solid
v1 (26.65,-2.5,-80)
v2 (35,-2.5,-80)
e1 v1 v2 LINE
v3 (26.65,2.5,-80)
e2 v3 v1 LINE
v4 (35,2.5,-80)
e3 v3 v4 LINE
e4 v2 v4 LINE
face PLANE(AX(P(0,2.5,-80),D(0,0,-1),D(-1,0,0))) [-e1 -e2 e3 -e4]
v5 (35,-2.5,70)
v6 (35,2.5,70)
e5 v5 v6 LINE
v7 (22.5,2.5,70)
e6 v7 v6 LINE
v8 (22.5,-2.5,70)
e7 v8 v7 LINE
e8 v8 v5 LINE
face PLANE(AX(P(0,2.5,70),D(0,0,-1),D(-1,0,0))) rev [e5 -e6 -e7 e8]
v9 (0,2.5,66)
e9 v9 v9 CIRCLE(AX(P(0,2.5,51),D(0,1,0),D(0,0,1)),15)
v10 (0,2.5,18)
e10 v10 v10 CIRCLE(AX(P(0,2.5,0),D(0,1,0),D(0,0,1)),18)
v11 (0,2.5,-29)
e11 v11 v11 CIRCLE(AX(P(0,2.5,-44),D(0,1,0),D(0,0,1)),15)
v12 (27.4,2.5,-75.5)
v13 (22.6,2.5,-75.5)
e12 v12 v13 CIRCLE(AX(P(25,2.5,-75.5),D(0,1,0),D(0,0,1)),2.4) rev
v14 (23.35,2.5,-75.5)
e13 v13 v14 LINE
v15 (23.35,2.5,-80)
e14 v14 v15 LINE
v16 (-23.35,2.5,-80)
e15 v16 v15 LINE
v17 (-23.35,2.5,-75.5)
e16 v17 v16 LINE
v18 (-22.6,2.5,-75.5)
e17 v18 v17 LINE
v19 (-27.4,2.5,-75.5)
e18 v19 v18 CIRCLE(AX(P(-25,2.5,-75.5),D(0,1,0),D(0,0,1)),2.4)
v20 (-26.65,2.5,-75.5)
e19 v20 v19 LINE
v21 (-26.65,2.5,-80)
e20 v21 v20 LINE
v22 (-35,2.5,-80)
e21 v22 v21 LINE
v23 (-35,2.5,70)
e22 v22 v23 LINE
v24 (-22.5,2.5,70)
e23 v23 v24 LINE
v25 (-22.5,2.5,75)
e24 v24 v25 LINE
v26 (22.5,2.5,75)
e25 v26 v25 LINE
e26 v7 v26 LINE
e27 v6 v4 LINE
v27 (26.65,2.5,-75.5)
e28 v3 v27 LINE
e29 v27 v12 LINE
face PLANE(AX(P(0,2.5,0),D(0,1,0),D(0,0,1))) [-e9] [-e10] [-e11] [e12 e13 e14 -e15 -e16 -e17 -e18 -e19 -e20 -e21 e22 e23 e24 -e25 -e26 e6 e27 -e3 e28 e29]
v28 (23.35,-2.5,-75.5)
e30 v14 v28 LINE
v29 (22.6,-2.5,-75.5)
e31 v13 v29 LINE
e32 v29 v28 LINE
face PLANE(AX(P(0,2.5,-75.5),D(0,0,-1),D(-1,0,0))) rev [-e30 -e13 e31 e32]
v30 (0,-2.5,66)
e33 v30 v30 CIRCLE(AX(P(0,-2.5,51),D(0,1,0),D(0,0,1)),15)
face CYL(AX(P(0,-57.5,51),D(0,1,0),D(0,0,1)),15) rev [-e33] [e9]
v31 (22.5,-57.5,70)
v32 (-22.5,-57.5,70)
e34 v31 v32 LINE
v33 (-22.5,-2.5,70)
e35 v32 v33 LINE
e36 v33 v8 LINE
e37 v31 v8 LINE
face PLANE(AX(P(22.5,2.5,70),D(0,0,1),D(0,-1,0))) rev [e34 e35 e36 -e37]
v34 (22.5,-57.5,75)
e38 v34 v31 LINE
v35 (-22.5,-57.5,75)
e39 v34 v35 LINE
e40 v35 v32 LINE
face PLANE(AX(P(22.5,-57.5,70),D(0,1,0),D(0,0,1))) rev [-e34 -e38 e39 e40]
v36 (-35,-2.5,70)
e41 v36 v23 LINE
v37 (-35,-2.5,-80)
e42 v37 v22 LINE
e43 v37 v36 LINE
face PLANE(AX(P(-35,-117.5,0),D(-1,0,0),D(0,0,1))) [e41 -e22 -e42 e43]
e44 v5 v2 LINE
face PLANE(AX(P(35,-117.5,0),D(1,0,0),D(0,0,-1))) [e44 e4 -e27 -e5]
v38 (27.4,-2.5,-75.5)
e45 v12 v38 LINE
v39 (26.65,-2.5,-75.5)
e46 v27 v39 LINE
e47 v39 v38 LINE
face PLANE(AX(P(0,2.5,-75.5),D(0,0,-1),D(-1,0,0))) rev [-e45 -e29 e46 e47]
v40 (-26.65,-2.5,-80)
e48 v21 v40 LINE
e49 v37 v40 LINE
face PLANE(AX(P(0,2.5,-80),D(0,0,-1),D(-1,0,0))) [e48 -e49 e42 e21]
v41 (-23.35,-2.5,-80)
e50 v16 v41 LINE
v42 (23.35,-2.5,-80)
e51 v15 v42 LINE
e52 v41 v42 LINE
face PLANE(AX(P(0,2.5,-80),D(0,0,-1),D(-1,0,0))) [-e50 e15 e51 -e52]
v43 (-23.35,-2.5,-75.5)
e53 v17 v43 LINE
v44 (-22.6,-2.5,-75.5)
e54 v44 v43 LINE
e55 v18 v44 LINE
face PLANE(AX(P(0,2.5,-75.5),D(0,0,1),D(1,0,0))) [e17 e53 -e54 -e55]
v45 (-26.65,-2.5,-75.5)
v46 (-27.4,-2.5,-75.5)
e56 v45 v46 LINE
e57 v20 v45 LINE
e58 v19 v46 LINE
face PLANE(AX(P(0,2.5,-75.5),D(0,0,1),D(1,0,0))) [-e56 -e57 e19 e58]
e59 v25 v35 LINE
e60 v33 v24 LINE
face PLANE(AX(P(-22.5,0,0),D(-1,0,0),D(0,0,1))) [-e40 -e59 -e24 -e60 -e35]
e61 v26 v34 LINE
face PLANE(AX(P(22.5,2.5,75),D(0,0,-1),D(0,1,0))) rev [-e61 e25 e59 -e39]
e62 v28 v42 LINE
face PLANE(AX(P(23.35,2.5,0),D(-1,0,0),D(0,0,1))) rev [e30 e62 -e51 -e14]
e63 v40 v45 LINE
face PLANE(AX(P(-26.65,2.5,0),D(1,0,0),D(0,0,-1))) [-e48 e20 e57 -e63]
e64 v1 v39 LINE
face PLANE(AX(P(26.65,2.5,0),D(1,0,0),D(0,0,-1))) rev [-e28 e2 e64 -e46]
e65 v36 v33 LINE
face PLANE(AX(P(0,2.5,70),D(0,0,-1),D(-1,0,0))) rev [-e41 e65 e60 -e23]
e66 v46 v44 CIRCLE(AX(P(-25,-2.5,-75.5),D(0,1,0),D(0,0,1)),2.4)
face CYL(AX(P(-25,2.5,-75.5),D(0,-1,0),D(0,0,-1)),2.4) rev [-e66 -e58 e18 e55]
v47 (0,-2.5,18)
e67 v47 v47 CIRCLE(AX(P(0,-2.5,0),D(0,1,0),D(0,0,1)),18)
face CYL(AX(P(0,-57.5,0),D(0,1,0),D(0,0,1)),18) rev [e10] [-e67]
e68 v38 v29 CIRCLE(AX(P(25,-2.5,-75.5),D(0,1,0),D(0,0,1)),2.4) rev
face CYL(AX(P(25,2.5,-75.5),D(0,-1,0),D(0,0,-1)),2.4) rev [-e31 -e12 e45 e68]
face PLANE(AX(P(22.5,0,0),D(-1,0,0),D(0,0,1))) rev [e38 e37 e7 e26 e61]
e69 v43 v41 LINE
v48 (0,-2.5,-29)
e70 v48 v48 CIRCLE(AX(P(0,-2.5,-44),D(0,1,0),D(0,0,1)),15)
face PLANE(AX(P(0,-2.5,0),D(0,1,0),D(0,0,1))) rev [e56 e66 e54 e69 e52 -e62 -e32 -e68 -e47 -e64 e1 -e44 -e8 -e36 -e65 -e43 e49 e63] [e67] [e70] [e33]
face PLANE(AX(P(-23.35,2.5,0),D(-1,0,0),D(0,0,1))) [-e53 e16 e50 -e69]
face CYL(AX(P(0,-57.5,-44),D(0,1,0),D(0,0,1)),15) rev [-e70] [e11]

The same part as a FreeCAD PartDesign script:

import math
import FreeCAD as App
import Part
import Sketcher
from FreeCAD import Vector


def add_polygon(sketch, points):
    """Adds a closed chain of lines whose ends are joined by coincident constraints."""
    first, n = sketch.GeometryCount, len(points)
    for a, b in zip(points, points[1:] + points[:1]):
        sketch.addGeometry(Part.LineSegment(App.Vector(*a, 0), App.Vector(*b, 0)), False)
    for i in range(n):
        sketch.addConstraint(Sketcher.Constraint("Coincident", first + i, 2, first + (i + 1) % n, 1))

doc = App.newDocument("Part")
params = doc.addObject("Spreadsheet::Sheet", "Params")
for row, (alias, value) in enumerate([
    ("sketch1_radius", "2.4 mm"),
    ("sketch1_height", "150 mm"),
    ("sketch1_width", "46.7 mm"),
    ("sketch1_height2", "4.5 mm"),
    ("sketch1_width2", "153.57 mm"),
    ("pad1_length", "5 mm"),
    ("sketch2_height", "150 mm"),
    ("pocket1_length", "120 mm"),
    ("sketch3_width", "60 mm"),
    ("sketch3_height", "5 mm"),
    ("pad2_length", "45 mm"),
    ("sketch4_diameter", "30 mm"),
    ("sketch4_diameter2", "36 mm"),
], start=1):
    params.set(f"A{row}", alias)
    params.set(f"B{row}", "=" + value)
    params.setAlias(f"B{row}", alias)

body = doc.addObject("PartDesign::Body", "Body")

sketch1 = doc.addObject("Sketcher::SketchObject", "Sketch")
body.addObject(sketch1)
sketch1.AttachmentSupport = (doc.XZ_Plane, [""])
sketch1.MapMode = "FlatFace"
sketch1.addGeometry([
    Part.LineSegment(Vector(-26.6, -80, 0), Vector(-76.8, -80, 0)),
    Part.LineSegment(Vector(-76.8, -80, 0), Vector(-76.8, 70, 0)),
    Part.LineSegment(Vector(-76.8, 70, 0), Vector(76.8, 70, 0)),
    Part.LineSegment(Vector(76.8, 70, 0), Vector(76.8, -80, 0)),
    Part.LineSegment(Vector(76.8, -80, 0), Vector(26.6, -80, 0)),
    Part.LineSegment(Vector(26.6, -80, 0), Vector(26.6, -75.5, 0)),
    Part.LineSegment(Vector(26.6, -75.5, 0), Vector(27.4, -75.5, 0)),
    Part.ArcOfCircle(Part.Circle(Vector(25, -75.5, 0), Vector(0, 0, 1), 2.4), math.radians(0), math.radians(180)),
    Part.LineSegment(Vector(22.6, -75.5, 0), Vector(23.4, -75.5, 0)),
    Part.LineSegment(Vector(23.4, -75.5, 0), Vector(23.4, -80, 0)),
    Part.LineSegment(Vector(23.4, -80, 0), Vector(-23.4, -80, 0)),
    Part.LineSegment(Vector(-23.4, -80, 0), Vector(-23.4, -75.5, 0)),
    Part.LineSegment(Vector(-23.4, -75.5, 0), Vector(-22.6, -75.5, 0)),
    Part.ArcOfCircle(Part.Circle(Vector(-25, -75.5, 0), Vector(0, 0, 1), 2.4), math.radians(0), math.radians(180)),
    Part.LineSegment(Vector(-27.4, -75.5, 0), Vector(-26.6, -75.5, 0)),
    Part.LineSegment(Vector(-26.6, -75.5, 0), Vector(-26.6, -80, 0)),
], False)
sketch1.addConstraint([
    Sketcher.Constraint("Coincident", 0, 2, 1, 1),
    Sketcher.Constraint("Coincident", 1, 2, 2, 1),
    Sketcher.Constraint("Coincident", 2, 2, 3, 1),
    Sketcher.Constraint("Coincident", 3, 2, 4, 1),
    Sketcher.Constraint("Coincident", 4, 2, 5, 1),
    Sketcher.Constraint("Coincident", 5, 2, 6, 1),
    Sketcher.Constraint("Coincident", 6, 2, 7, 1),
    Sketcher.Constraint("Coincident", 7, 2, 8, 1),
    Sketcher.Constraint("Coincident", 8, 2, 9, 1),
    Sketcher.Constraint("Coincident", 9, 2, 10, 1),
    Sketcher.Constraint("Coincident", 10, 2, 11, 1),
    Sketcher.Constraint("Coincident", 11, 2, 12, 1),
    Sketcher.Constraint("Coincident", 12, 2, 13, 1),
    Sketcher.Constraint("Coincident", 13, 2, 14, 1),
    Sketcher.Constraint("Coincident", 14, 2, 15, 1),
    Sketcher.Constraint("Coincident", 15, 2, 0, 1),
    Sketcher.Constraint("Horizontal", 0),
    Sketcher.Constraint("Vertical", 1),
    Sketcher.Constraint("Horizontal", 2),
    Sketcher.Constraint("Vertical", 3),
    Sketcher.Constraint("Horizontal", 4),
    Sketcher.Constraint("Vertical", 5),
    Sketcher.Constraint("Horizontal", 6),
    Sketcher.Constraint("Horizontal", 8),
    Sketcher.Constraint("Vertical", 9),
    Sketcher.Constraint("Horizontal", 10),
    Sketcher.Constraint("Vertical", 11),
    Sketcher.Constraint("Horizontal", 12),
    Sketcher.Constraint("Horizontal", 14),
    Sketcher.Constraint("Vertical", 15),
    Sketcher.Constraint("Equal", 7, 13),
    Sketcher.Constraint("Symmetric", 7, 3, 13, 3, -2),
    Sketcher.Constraint("Symmetric", 0, 2, 3, 2, -2),
    Sketcher.Constraint("Symmetric", 8, 2, 11, 2, -2),
    Sketcher.Constraint("Symmetric", 5, 2, 14, 2, -2),
    Sketcher.Constraint("Horizontal", 13, 3, 5, 2),
    Sketcher.Constraint("Horizontal", 6, 2, 7, 2),
    Sketcher.Constraint("Horizontal", 4, 2, 9, 2),
    Sketcher.Constraint("Equal", 6, 8),
    Sketcher.Constraint("Radius", 7, 2.4),
    Sketcher.Constraint("DistanceY", 1, 1, 1, 2, 150.0),
    Sketcher.Constraint("DistanceX", 10, 2, 10, 1, 46.7),
    Sketcher.Constraint("DistanceY", 5, 1, 5, 2, 4.5),
    Sketcher.Constraint("DistanceX", -1, 1, 7, 3, 25.0),
    Sketcher.Constraint("DistanceY", 0, 2, -1, 1, 80.0),
    Sketcher.Constraint("DistanceX", 2, 1, 2, 2, 153.57),
])
sketch1.setExpression("Constraints[39]", "Params.sketch1_radius")
sketch1.setExpression("Constraints[40]", "Params.sketch1_height")
sketch1.setExpression("Constraints[41]", "Params.sketch1_width")
sketch1.setExpression("Constraints[42]", "Params.sketch1_height2")
sketch1.setExpression("Constraints[45]", "Params.sketch1_width2")
pad1 = doc.addObject("PartDesign::Pad", "Pad")
body.addObject(pad1)
pad1.Profile = sketch1
pad1.setExpression("Length", "Params.pad1_length")
pad1.Midplane = True

sketch2 = doc.addObject("Sketcher::SketchObject", "Sketch001")
body.addObject(sketch2)
sketch2.AttachmentSupport = (doc.XZ_Plane, [""])
sketch2.MapMode = "FlatFace"
sketch2.AttachmentOffset = App.Placement(Vector(0, 0, -2.5), App.Rotation())
add_polygon(sketch2, [(-77, -80), (-77, 70), (-35, 70), (-35, -80)])
add_polygon(sketch2, [(35, -80), (35, 70), (77, 70), (77, -80)])
sketch2.addConstraint([
    Sketcher.Constraint("Vertical", 0),
    Sketcher.Constraint("Horizontal", 1),
    Sketcher.Constraint("Vertical", 2),
    Sketcher.Constraint("Horizontal", 3),
    Sketcher.Constraint("Vertical", 4),
    Sketcher.Constraint("Horizontal", 5),
    Sketcher.Constraint("Vertical", 6),
    Sketcher.Constraint("Horizontal", 7),
    Sketcher.Constraint("Symmetric", 1, 2, 4, 2, -2),
    Sketcher.Constraint("Symmetric", 3, 2, 6, 2, -2),
    Sketcher.Constraint("DistanceY", 0, 1, 0, 2, 150.0),
    Sketcher.Constraint("DistanceY", -1, 1, 0, 2, 70.0),
    Sketcher.Constraint("DistanceX", 1, 2, -1, 1, 35.0),
    Sketcher.Constraint("DistanceX", 1, 1, 1, 2, 41.785),
])
sketch2.setExpression("Constraints[18]", "Params.sketch2_height")
pocket1 = doc.addObject("PartDesign::Pocket", "Pocket")
body.addObject(pocket1)
pocket1.Profile = sketch2
pocket1.setExpression("Length", "Params.pocket1_length")
pocket1.Reversed = True

sketch3 = doc.addObject("Sketcher::SketchObject", "Sketch002")
body.addObject(sketch3)
sketch3.AttachmentSupport = (doc.YZ_Plane, [""])
sketch3.MapMode = "FlatFace"
add_polygon(sketch3, [(2, 75), (-58, 75), (-58, 70), (2, 70)])
sketch3.addConstraint([
    Sketcher.Constraint("Horizontal", 0),
    Sketcher.Constraint("Vertical", 1),
    Sketcher.Constraint("Horizontal", 2),
    Sketcher.Constraint("Vertical", 3),
    Sketcher.Constraint("DistanceX", 0, 2, 0, 1, 60.0),
    Sketcher.Constraint("DistanceY", 1, 2, 1, 1, 5.0),
    Sketcher.Constraint("DistanceY", -1, 1, 0, 2, 75.0),
    Sketcher.Constraint("DistanceX", 0, 2, -1, 1, 57.5),
])
sketch3.setExpression("Constraints[8]", "Params.sketch3_width")
sketch3.setExpression("Constraints[9]", "Params.sketch3_height")
pad2 = doc.addObject("PartDesign::Pad", "Pad001")
body.addObject(pad2)
pad2.Profile = sketch3
pad2.setExpression("Length", "Params.pad2_length")
pad2.Midplane = True

sketch4 = doc.addObject("Sketcher::SketchObject", "Sketch003")
body.addObject(sketch4)
sketch4.AttachmentSupport = (doc.XZ_Plane, [""])
sketch4.MapMode = "FlatFace"
sketch4.AttachmentOffset = App.Placement(Vector(0, 0, -2.5), App.Rotation())
sketch4.addGeometry([
    Part.Circle(Vector(0, -44, 0), Vector(0, 0, 1), 15),
    Part.Circle(Vector(0, 51, 0), Vector(0, 0, 1), 15),
    Part.Circle(Vector(0, 0, 0), Vector(0, 0, 1), 18),
], False)
sketch4.addConstraint([
    Sketcher.Constraint("Coincident", 2, 3, -1, 1),
    Sketcher.Constraint("Equal", 0, 1),
    Sketcher.Constraint("PointOnObject", 0, 3, -2),
    Sketcher.Constraint("PointOnObject", 1, 3, -2),
    Sketcher.Constraint("Diameter", 0, 30.0),
    Sketcher.Constraint("Diameter", 2, 36.0),
    Sketcher.Constraint("DistanceY", 0, 3, -1, 1, 44.0),
    Sketcher.Constraint("DistanceY", -1, 1, 1, 3, 51.0),
])
sketch4.setExpression("Constraints[4]", "Params.sketch4_diameter")
sketch4.setExpression("Constraints[5]", "Params.sketch4_diameter2")
pocket2 = doc.addObject("PartDesign::Pocket", "Pocket001")
body.addObject(pocket2)
pocket2.Profile = sketch4
pocket2.Type = "ThroughAll"
pocket2.Midplane = True

doc.recompute()
